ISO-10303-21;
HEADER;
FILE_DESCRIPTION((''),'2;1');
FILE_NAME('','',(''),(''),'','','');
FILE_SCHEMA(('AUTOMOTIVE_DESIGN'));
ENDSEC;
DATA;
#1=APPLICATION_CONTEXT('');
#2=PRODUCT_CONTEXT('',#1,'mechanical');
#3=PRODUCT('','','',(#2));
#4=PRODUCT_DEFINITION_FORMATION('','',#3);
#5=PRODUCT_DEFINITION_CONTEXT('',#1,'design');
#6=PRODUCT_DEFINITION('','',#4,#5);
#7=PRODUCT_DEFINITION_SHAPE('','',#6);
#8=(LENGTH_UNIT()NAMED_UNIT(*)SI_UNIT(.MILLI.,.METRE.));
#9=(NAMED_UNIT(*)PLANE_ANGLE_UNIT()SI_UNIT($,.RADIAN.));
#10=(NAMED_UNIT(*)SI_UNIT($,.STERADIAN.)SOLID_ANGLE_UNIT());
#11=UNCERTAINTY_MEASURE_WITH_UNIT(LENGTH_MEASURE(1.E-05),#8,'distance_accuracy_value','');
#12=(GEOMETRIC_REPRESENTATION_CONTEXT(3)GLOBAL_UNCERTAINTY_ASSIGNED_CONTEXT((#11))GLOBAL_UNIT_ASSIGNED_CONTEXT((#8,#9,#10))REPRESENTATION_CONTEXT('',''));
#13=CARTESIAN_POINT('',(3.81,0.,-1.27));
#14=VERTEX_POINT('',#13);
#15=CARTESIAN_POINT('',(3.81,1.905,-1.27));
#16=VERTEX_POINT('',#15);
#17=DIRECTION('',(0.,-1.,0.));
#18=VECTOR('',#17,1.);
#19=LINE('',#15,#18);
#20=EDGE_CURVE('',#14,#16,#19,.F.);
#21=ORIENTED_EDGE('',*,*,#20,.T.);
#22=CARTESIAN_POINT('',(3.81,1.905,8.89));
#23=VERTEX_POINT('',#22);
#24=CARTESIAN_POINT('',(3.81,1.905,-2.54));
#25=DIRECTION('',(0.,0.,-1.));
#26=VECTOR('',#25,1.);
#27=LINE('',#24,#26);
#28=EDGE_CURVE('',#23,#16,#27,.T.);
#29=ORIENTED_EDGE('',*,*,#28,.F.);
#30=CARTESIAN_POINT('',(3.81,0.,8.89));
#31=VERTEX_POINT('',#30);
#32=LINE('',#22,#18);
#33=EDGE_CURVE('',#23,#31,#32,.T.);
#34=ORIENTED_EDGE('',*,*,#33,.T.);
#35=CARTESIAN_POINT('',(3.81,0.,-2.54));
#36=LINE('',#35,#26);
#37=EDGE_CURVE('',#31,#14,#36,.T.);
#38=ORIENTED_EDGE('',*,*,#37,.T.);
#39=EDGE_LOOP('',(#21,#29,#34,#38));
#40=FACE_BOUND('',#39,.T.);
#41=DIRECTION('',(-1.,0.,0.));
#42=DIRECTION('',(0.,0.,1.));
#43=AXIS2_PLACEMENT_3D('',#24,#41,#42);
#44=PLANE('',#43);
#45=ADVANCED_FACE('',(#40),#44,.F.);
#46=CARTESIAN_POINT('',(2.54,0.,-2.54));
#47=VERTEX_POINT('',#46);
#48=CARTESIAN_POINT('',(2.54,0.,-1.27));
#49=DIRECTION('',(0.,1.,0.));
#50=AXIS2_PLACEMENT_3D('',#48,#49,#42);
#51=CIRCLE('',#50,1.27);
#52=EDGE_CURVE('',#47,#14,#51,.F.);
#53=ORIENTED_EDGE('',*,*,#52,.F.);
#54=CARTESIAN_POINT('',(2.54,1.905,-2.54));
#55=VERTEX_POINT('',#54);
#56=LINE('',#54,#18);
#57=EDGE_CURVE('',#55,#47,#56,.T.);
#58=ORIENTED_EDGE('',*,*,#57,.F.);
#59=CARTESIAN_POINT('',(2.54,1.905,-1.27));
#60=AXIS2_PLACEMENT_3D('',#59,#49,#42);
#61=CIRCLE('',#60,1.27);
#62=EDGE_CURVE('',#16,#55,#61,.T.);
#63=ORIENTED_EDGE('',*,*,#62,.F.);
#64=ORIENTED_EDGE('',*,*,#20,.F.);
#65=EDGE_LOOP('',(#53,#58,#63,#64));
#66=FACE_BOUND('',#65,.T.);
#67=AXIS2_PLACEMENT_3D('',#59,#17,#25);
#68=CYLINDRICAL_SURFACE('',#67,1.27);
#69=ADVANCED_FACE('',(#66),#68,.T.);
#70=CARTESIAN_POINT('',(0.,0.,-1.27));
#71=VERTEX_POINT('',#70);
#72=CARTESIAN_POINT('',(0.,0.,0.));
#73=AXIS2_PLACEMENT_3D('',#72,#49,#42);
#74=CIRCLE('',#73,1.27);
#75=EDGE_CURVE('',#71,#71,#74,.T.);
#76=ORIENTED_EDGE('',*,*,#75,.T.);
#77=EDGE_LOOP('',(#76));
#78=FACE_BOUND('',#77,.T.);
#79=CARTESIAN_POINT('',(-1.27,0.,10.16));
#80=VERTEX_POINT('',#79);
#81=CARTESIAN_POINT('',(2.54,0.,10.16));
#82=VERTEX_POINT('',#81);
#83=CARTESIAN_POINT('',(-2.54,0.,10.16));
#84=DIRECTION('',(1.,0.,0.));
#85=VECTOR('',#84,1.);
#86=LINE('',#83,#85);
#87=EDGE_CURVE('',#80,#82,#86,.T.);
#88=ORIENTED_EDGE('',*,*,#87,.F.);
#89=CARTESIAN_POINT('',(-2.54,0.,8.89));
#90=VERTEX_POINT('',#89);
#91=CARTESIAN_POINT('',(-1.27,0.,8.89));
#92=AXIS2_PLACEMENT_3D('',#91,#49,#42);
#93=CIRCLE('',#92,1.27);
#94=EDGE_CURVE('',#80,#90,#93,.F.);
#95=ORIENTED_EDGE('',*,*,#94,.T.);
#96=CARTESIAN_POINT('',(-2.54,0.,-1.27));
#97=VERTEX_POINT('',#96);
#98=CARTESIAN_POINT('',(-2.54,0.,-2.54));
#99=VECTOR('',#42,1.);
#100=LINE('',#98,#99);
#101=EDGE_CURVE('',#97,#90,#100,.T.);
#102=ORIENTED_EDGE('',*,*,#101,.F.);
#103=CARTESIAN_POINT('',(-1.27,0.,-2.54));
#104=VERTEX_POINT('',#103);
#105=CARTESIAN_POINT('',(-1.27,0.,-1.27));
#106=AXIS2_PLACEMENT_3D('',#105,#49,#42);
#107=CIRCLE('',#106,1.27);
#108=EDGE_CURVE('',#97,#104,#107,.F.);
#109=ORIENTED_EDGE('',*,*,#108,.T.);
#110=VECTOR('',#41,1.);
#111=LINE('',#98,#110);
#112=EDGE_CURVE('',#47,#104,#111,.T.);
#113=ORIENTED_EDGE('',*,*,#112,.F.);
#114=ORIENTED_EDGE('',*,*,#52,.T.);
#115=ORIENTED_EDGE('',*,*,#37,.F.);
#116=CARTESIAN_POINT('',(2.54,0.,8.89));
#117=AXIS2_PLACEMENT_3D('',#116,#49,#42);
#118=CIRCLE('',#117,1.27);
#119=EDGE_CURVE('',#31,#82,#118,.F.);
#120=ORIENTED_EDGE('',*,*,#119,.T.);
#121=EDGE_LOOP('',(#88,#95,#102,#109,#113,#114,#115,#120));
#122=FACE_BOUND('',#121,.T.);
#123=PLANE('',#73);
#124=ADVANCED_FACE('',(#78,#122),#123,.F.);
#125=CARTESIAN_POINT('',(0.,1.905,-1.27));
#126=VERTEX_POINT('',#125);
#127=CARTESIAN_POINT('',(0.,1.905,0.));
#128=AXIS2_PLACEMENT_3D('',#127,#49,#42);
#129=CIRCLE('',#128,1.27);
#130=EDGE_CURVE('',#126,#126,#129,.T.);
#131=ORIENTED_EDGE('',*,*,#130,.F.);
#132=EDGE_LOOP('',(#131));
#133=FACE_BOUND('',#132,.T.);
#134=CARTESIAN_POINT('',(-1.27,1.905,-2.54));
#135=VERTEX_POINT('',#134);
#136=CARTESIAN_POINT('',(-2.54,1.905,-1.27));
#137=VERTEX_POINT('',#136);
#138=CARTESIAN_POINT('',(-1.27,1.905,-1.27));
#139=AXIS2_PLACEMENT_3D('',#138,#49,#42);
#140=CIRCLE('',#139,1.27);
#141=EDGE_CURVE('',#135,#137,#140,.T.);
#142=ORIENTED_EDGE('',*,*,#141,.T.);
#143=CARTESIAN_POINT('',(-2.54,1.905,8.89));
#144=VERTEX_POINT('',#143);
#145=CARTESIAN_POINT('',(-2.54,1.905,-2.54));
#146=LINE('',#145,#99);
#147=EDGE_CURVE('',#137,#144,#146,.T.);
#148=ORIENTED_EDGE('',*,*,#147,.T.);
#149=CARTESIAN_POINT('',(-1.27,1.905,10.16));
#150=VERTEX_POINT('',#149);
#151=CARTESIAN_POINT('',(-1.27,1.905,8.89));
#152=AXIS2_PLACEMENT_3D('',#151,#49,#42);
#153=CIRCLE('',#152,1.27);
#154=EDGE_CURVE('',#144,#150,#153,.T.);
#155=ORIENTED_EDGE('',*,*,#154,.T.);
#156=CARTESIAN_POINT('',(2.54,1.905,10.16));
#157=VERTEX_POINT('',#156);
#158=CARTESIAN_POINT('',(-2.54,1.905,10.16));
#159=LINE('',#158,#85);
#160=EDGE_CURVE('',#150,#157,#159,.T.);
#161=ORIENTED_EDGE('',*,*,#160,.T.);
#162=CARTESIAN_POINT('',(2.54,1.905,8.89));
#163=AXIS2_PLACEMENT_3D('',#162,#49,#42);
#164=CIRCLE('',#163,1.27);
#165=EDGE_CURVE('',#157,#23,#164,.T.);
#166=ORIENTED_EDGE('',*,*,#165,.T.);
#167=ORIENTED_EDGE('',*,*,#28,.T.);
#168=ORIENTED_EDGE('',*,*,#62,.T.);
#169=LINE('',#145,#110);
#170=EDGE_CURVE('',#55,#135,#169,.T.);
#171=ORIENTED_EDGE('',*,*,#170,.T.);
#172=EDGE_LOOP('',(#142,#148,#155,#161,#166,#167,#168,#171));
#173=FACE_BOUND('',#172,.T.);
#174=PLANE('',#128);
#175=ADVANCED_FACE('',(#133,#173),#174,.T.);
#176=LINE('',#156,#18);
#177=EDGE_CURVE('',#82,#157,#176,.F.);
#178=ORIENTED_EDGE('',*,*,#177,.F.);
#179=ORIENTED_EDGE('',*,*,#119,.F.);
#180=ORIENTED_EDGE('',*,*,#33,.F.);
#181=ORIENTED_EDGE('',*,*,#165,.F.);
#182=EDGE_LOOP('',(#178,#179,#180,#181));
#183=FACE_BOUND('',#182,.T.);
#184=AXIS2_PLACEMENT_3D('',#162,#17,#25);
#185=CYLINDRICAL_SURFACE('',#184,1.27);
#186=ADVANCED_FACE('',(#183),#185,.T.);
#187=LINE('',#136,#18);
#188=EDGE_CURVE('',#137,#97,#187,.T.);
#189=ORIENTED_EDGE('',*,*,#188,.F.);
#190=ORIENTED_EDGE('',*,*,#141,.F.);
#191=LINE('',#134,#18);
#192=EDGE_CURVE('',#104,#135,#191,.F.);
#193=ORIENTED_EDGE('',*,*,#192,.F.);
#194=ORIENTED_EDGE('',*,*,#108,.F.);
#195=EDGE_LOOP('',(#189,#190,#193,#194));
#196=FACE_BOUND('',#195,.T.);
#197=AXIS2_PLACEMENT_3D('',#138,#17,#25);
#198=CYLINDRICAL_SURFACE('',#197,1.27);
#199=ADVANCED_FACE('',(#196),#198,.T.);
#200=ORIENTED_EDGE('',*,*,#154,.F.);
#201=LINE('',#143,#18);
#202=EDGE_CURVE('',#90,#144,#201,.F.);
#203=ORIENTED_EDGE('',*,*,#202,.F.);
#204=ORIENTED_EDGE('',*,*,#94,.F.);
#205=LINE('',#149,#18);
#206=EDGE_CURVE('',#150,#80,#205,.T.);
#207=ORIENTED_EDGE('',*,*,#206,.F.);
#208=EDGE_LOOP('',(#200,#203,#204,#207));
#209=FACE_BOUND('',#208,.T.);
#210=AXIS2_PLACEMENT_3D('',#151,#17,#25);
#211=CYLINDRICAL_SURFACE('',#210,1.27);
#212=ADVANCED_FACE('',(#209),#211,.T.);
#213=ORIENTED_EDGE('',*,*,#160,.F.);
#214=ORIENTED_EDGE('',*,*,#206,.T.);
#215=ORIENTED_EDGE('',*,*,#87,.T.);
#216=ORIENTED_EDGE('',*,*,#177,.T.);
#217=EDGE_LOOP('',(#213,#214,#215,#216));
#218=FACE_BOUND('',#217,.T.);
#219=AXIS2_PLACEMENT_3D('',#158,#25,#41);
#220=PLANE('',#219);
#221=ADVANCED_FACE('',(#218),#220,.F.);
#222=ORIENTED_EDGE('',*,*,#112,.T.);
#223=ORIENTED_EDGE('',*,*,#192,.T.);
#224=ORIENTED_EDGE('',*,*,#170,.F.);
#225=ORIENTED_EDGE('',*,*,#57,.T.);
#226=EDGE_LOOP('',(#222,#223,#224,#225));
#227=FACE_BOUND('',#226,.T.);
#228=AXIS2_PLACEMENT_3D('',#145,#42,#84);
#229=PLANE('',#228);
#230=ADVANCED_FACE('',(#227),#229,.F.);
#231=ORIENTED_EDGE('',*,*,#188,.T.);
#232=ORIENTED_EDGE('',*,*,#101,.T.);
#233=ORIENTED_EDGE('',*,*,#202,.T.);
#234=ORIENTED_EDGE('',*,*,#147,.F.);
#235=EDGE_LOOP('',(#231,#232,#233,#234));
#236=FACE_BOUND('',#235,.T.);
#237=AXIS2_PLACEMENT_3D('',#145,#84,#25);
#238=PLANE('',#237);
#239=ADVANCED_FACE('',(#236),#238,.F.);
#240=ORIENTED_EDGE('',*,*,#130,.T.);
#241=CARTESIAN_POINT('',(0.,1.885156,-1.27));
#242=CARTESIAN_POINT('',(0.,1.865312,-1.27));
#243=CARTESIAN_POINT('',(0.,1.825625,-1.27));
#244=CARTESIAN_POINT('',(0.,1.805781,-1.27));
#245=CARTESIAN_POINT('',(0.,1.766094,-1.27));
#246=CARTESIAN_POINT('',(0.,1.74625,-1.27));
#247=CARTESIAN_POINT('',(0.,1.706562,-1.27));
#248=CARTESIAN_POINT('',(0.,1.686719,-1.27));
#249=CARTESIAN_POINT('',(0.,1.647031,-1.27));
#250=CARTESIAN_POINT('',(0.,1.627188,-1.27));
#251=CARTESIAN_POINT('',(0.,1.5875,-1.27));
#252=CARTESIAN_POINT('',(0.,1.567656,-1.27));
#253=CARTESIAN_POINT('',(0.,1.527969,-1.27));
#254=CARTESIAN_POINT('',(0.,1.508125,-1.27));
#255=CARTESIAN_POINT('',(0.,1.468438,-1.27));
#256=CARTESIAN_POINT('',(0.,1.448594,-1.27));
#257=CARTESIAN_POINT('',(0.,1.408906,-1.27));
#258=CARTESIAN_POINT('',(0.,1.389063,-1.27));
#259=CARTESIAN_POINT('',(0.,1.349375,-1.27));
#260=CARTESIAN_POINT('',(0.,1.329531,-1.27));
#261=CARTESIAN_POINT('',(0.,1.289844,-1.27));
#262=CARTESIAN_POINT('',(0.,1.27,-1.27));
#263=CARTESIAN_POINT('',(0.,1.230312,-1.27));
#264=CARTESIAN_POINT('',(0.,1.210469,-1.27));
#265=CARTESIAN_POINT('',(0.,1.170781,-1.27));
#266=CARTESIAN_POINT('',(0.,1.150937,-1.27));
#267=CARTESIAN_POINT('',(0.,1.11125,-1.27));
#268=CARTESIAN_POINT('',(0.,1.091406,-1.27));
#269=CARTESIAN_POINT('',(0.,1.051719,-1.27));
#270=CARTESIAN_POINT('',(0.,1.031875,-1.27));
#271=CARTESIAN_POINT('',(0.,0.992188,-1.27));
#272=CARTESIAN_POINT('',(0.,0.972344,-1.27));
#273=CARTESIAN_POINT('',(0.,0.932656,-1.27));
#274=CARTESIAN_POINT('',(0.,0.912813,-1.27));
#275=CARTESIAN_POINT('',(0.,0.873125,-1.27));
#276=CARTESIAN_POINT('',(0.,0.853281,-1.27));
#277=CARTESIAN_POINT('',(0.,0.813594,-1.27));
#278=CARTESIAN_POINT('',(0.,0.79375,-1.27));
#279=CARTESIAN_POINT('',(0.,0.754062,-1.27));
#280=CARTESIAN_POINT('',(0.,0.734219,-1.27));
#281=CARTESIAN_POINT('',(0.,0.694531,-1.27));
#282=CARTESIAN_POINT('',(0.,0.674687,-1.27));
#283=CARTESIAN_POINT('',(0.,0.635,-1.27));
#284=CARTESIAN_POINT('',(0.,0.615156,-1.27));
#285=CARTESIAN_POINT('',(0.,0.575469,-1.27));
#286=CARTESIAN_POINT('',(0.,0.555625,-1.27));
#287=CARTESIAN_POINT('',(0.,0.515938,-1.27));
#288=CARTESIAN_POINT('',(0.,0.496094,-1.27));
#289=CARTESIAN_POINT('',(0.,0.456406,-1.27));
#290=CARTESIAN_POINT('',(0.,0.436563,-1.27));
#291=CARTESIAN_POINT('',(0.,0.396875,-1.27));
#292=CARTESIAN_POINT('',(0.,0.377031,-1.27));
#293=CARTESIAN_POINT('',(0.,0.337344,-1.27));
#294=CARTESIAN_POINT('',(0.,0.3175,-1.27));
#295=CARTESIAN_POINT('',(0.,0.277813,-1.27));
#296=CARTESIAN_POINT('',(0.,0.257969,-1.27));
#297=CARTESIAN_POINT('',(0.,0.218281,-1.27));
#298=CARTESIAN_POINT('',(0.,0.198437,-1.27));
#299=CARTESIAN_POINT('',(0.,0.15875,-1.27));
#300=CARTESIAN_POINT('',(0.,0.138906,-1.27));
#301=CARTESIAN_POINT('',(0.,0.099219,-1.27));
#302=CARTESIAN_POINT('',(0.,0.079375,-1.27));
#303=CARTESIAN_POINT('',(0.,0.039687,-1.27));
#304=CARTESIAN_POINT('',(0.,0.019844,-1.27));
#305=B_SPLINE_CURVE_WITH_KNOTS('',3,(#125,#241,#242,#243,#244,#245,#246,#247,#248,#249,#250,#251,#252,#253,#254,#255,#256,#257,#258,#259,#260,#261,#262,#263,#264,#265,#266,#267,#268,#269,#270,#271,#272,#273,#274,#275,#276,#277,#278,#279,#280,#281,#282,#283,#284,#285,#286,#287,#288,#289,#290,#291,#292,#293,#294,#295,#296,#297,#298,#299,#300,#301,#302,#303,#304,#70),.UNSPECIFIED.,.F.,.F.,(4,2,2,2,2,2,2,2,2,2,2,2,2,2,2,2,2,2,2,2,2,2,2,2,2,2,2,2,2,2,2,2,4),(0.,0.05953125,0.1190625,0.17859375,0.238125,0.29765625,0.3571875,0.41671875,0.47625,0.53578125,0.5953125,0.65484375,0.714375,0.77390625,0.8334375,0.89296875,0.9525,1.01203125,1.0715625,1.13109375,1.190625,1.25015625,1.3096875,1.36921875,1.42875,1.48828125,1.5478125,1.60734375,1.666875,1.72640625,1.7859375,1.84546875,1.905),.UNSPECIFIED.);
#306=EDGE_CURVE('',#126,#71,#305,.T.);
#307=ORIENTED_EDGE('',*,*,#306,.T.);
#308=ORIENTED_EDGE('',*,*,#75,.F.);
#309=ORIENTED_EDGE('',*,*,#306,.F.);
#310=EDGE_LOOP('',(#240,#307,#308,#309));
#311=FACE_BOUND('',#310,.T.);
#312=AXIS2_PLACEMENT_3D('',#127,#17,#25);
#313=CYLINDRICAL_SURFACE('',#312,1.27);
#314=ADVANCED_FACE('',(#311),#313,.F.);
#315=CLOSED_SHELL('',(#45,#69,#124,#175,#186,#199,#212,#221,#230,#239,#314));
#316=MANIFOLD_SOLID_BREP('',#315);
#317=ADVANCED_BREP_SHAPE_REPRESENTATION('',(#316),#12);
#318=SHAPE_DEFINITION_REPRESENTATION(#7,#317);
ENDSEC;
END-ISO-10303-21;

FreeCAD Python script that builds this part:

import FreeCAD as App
import Part
import Sketcher
Q = App.Units.Quantity


def edges_at(feature, points):
    """Names of the edges that pass closest to the given points."""
    edges = feature.Shape.Edges
    near = lambda p: min(range(len(edges)), key=lambda i: edges[i].distToShape(Part.Vertex(*p))[0])
    return sorted({f"Edge{near(p) + 1}" for p in points})

doc = App.newDocument("Part")
body = doc.addObject("PartDesign::Body", "Body")

sketch1 = body.newObject("Sketcher::SketchObject", "Sketch")
sketch1.AttachmentSupport = (doc.getObject("XZ_Plane"), [""])
sketch1.MapMode = "FlatFace"
sketch1.addGeometry([
    Part.LineSegment(App.Vector(-2.54, -2.54, 0), App.Vector(-2.54, 10.16, 0)),
    Part.LineSegment(App.Vector(-2.54, 10.16, 0), App.Vector(3.81, 10.16, 0)),
    Part.LineSegment(App.Vector(3.81, 10.16, 0), App.Vector(3.81, -2.54, 0)),
    Part.LineSegment(App.Vector(3.81, -2.54, 0), App.Vector(-2.54, -2.54, 0)),
    Part.Circle(App.Vector(0, 0, 0), App.Vector(0, 0, 1), 1.27),
], False)
sketch1.addConstraint([
    Sketcher.Constraint("Coincident", 0, 2, 1, 1),
    Sketcher.Constraint("Coincident", 1, 2, 2, 1),
    Sketcher.Constraint("Coincident", 2, 2, 3, 1),
    Sketcher.Constraint("Coincident", 3, 2, 0, 1),
    Sketcher.Constraint("Vertical", 0),
    Sketcher.Constraint("Horizontal", 1),
    Sketcher.Constraint("Vertical", 2),
    Sketcher.Constraint("Horizontal", 3),
    Sketcher.Constraint("Coincident", 4, 3, -1, 1),
    Sketcher.Constraint("Diameter", 4, Q("0.1 in")),
    Sketcher.Constraint("DistanceY", 0, 1, 0, 2, Q("0.5 in")),
    Sketcher.Constraint("DistanceX", 1, 1, 1, 2, Q("0.25 in")),
    Sketcher.Constraint("DistanceX", 0, 2, -1, 1, Q("0.1 in")),
    Sketcher.Constraint("DistanceY", -1, 1, 0, 2, Q("0.4 in")),
])
pad1 = body.newObject("PartDesign::Pad", "Pad")
pad1.Profile = sketch1
pad1.Length = Q("0.075 in")
pad1.Reversed = True
doc.recompute()

fillet = body.newObject("PartDesign::Fillet", "Fillet")
fillet.Base = (pad1, edges_at(pad1, [
    (-2.54, 0.953, -2.54),
    (3.81, 0.953, -2.54),
    (3.81, 0.953, 10.16),
    (-2.54, 0.953, 10.16),
]))
fillet.Radius = Q("0.05 in")

doc.recompute()
